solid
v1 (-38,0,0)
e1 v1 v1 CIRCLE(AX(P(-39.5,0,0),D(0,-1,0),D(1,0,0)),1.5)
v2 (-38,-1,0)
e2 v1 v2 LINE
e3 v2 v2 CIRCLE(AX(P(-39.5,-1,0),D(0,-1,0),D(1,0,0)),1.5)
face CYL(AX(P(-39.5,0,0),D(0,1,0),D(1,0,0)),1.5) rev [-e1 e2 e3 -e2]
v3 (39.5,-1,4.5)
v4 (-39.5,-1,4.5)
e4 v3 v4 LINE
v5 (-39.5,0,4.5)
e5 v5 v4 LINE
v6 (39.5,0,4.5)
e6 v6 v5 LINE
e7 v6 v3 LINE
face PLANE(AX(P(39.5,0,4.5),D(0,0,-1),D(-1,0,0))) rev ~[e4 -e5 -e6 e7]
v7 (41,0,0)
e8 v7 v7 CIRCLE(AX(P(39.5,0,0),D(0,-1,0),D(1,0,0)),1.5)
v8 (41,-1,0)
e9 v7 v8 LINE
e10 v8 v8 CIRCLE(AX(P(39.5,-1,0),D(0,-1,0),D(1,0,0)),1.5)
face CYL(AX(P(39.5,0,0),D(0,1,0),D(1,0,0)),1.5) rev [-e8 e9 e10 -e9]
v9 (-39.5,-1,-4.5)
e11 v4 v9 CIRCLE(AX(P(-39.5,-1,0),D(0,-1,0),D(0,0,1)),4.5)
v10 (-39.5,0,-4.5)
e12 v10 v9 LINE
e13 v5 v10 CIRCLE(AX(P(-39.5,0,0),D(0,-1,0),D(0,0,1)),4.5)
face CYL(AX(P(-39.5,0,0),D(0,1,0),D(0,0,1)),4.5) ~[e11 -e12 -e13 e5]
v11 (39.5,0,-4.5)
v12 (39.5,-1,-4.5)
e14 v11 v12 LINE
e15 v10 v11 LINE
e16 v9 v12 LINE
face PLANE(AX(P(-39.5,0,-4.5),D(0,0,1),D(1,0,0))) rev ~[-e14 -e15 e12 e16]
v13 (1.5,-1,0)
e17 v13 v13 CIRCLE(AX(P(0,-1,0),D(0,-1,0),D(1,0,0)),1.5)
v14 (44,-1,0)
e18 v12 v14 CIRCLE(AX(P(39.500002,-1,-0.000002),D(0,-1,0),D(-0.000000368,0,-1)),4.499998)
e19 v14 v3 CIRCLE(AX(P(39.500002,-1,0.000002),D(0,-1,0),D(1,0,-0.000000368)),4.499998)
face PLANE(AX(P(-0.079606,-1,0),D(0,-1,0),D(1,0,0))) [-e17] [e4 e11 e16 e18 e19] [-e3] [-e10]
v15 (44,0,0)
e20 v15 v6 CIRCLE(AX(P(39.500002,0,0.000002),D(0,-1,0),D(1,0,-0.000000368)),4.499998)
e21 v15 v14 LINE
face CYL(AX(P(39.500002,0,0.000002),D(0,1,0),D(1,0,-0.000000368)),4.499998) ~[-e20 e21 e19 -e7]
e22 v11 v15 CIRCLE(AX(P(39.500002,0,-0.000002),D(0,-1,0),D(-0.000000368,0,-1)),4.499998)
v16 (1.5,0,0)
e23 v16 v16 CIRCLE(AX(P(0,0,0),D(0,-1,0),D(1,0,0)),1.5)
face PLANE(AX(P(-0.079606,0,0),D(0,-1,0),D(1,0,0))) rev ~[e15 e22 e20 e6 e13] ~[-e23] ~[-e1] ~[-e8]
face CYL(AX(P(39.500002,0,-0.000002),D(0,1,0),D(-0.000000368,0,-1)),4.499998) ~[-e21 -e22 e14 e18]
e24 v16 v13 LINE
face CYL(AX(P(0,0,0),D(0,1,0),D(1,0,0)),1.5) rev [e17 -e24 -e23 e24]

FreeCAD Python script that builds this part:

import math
import FreeCAD as App
import Part
import Sketcher

doc = App.newDocument("Part")
body = doc.addObject("PartDesign::Body", "Body")

# Sketch on XZ plane
sketch1 = body.newObject("Sketcher::SketchObject", "Sketch")
sketch1.AttachmentSupport = (doc.getObject("XZ_Plane"), [""])
sketch1.MapMode = "FlatFace"
sketch1.addGeometry([
    Part.LineSegment(App.Vector(-39.5, -4.5, 0), App.Vector(39.5, -4.5, 0)),  # 0
    Part.ArcOfCircle(Part.Circle(App.Vector(39.5, 0, 0), App.Vector(0, 0, 1), 4.5), math.radians(-90), math.radians(0)),  # 1
    Part.ArcOfCircle(Part.Circle(App.Vector(39.5, 0, 0), App.Vector(0, 0, 1), 4.5), math.radians(0), math.radians(90)),  # 2
    Part.LineSegment(App.Vector(39.5, 4.5, 0), App.Vector(-39.5, 4.5, 0)),  # 3
    Part.ArcOfCircle(Part.Circle(App.Vector(-39.5, 0, 0), App.Vector(0, 0, 1), 4.5), math.radians(90), math.radians(270)),  # 4
    Part.Circle(App.Vector(-39.5, 0, 0), App.Vector(0, 0, 1), 1.5),  # 5
    Part.Circle(App.Vector(0, 0, 0), App.Vector(0, 0, 1), 1.5),  # 6
    Part.Circle(App.Vector(39.5, 0, 0), App.Vector(0, 0, 1), 1.5),  # 7
], False)
sketch1.addConstraint([
    Sketcher.Constraint("Tangent", 0, 2, 1, 1),
    Sketcher.Constraint("Tangent", 1, 2, 2, 1),
    Sketcher.Constraint("Tangent", 2, 2, 3, 1),
    Sketcher.Constraint("Tangent", 3, 2, 4, 1),
    Sketcher.Constraint("Tangent", 4, 2, 0, 1),
    Sketcher.Constraint("Horizontal", 0),
    Sketcher.Constraint("Horizontal", 3),
    Sketcher.Constraint("Coincident", 6, 3, -1, 1),
    Sketcher.Constraint("Coincident", 5, 3, 4, 3),
    Sketcher.Constraint("Coincident", 7, 3, 1, 3),
    Sketcher.Constraint("Equal", 1, 2),
    Sketcher.Constraint("Equal", 5, 6),
    Sketcher.Constraint("Equal", 6, 7),
    Sketcher.Constraint("Symmetric", 1, 3, 4, 3, -1, 1),
    Sketcher.Constraint("PointOnObject", 1, 2, -1),
    Sketcher.Constraint("Diameter", 5, 3.0),
    Sketcher.Constraint("Radius", 1, 4.499998),
    Sketcher.Constraint("DistanceX", 0, 1, 0, 2, 79.0),
])
pad1 = body.newObject("PartDesign::Pad", "Pad")
pad1.Profile = sketch1
pad1.Length = 1

doc.recompute()
